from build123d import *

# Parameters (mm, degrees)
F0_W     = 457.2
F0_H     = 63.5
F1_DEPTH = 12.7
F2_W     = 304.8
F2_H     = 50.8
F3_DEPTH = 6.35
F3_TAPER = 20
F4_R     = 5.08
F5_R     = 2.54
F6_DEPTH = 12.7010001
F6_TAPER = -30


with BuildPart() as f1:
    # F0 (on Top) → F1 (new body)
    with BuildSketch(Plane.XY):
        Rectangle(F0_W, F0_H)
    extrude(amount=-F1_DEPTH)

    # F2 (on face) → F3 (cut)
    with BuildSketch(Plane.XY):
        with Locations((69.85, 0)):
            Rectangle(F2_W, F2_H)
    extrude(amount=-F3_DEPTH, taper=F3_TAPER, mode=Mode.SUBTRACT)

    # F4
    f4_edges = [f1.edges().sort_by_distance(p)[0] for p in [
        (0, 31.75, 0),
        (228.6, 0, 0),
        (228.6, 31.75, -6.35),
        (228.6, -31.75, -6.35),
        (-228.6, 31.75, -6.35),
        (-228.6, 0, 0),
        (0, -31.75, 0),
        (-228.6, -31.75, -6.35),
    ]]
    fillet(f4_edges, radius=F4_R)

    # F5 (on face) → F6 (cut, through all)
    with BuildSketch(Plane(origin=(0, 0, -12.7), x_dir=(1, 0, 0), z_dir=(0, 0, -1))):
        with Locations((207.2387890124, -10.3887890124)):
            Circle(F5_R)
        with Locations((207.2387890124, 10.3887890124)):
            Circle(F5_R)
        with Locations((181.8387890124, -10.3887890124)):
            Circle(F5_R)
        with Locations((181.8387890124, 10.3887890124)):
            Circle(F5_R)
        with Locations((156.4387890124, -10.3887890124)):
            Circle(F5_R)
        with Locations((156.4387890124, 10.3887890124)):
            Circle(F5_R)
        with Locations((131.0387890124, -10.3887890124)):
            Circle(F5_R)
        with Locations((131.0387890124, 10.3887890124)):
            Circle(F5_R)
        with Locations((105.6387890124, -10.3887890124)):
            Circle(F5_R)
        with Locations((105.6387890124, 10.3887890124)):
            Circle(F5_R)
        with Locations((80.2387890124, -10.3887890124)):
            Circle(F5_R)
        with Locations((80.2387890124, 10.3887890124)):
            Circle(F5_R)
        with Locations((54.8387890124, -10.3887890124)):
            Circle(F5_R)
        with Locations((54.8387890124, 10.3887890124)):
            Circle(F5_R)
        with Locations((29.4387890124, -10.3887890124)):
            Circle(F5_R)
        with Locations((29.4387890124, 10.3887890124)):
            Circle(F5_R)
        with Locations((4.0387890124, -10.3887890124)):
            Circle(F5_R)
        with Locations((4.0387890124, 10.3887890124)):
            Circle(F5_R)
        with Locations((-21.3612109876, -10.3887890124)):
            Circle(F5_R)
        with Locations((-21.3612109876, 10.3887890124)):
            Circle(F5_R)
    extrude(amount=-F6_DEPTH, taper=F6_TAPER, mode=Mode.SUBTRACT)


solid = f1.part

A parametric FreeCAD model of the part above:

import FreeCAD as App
import Part
import Sketcher
Q = App.Units.Quantity


def edges_at(feature, points):
    """Names of the edges that pass closest to the given points."""
    edges = feature.Shape.Edges
    near = lambda p: min(range(len(edges)), key=lambda i: edges[i].distToShape(Part.Vertex(*p))[0])
    return sorted({f"Edge{near(p) + 1}" for p in points})


def add_polygon(sketch, points):
    """Adds a closed chain of lines whose ends are joined by coincident constraints."""
    first, n = sketch.GeometryCount, len(points)
    for a, b in zip(points, points[1:] + points[:1]):
        sketch.addGeometry(Part.LineSegment(App.Vector(*a, 0), App.Vector(*b, 0)), False)
    for i in range(n):
        sketch.addConstraint(Sketcher.Constraint("Coincident", first + i, 2, first + (i + 1) % n, 1))

doc = App.newDocument("Part")
body = doc.addObject("PartDesign::Body", "Body")

# Sketch on XY plane
sketch1 = doc.addObject("Sketcher::SketchObject", "Sketch")
body.addObject(sketch1)
sketch1.AttachmentSupport = (doc.XY_Plane, [""])
sketch1.MapMode = "FlatFace"
add_polygon(sketch1, [(-229, 32), (-229, -32), (229, -32), (229, 32)])  # lines 0-3
sketch1.addConstraint([
    Sketcher.Constraint("Vertical", 0),
    Sketcher.Constraint("Horizontal", 1),
    Sketcher.Constraint("Vertical", 2),
    Sketcher.Constraint("Horizontal", 3),
    Sketcher.Constraint("Symmetric", 0, 2, 2, 2, -1, 1),
    Sketcher.Constraint("DistanceX", 1, 1, 1, 2, Q("18 in")),
    Sketcher.Constraint("DistanceY", 0, 2, 0, 1, Q("2.5 in")),
])
pad1 = doc.addObject("PartDesign::Pad", "Pad")
body.addObject(pad1)
pad1.Profile = sketch1
pad1.Length = Q("0.5 in")
pad1.Reversed = True

# Sketch on XY plane
sketch2 = doc.addObject("Sketcher::SketchObject", "Sketch001")
body.addObject(sketch2)
sketch2.AttachmentSupport = (doc.XY_Plane, [""])
sketch2.MapMode = "FlatFace"
add_polygon(sketch2, [(-83, 25), (-83, -25), (222, -25), (222, 25)])  # lines 0-3
sketch2.addConstraint([
    Sketcher.Constraint("Vertical", 0),
    Sketcher.Constraint("Horizontal", 1),
    Sketcher.Constraint("Vertical", 2),
    Sketcher.Constraint("Horizontal", 3),
    Sketcher.Constraint("DistanceX", 1, 1, 1, 2, Q("12 in")),
    Sketcher.Constraint("DistanceY", 0, 2, 0, 1, Q("2 in")),
    Sketcher.Constraint("DistanceY", 0, 2, -1, 1, Q("1 in")),
    Sketcher.Constraint("DistanceX", 0, 2, -1, 1, Q("3.25 in")),
])
pocket1 = doc.addObject("PartDesign::Pocket", "Pocket")
body.addObject(pocket1)
pocket1.Profile = sketch2
pocket1.Length = Q("0.25 in")
pocket1.TaperAngle = -20
doc.recompute()

fillet = doc.addObject("PartDesign::Fillet", "Fillet")
body.addObject(fillet)
fillet.Base = (pocket1, edges_at(pocket1, [
    (0, 31.75, 0),
    (228.6, 0, 0),
    (228.6, 31.75, -6.35),
    (228.6, -31.75, -6.35),
    (-228.6, 31.75, -6.35),
    (-228.6, 0, 0),
    (0, -31.75, 0),
    (-228.6, -31.75, -6.35),
]))
fillet.Radius = Q("0.2 in")

# Sketch on XY plane
sketch3 = doc.addObject("Sketcher::SketchObject", "Sketch002")
body.addObject(sketch3)
sketch3.AttachmentSupport = (doc.XY_Plane, [""])
sketch3.MapMode = "FlatFace"
sketch3.AttachmentOffset = App.Placement(App.Vector(0, 0, -0.5 * 25.4), App.Rotation())
sketch3.addGeometry([
    Part.Circle(App.Vector(207.2, 10.4, 0), App.Vector(0, 0, 1), 2.5),  # 0
    Part.Circle(App.Vector(207.2, -10.4, 0), App.Vector(0, 0, 1), 2.5),  # 1
    Part.Circle(App.Vector(181.8, 10.4, 0), App.Vector(0, 0, 1), 2.5),  # 2
    Part.Circle(App.Vector(181.8, -10.4, 0), App.Vector(0, 0, 1), 2.5),  # 3
    Part.Circle(App.Vector(156.4, 10.4, 0), App.Vector(0, 0, 1), 2.5),  # 4
    Part.Circle(App.Vector(156.4, -10.4, 0), App.Vector(0, 0, 1), 2.5),  # 5
    Part.Circle(App.Vector(131, 10.4, 0), App.Vector(0, 0, 1), 2.5),  # 6
    Part.Circle(App.Vector(131, -10.4, 0), App.Vector(0, 0, 1), 2.5),  # 7
    Part.Circle(App.Vector(105.6, 10.4, 0), App.Vector(0, 0, 1), 2.5),  # 8
    Part.Circle(App.Vector(105.6, -10.4, 0), App.Vector(0, 0, 1), 2.5),  # 9
    Part.Circle(App.Vector(80.2, 10.4, 0), App.Vector(0, 0, 1), 2.5),  # 10
    Part.Circle(App.Vector(80.2, -10.4, 0), App.Vector(0, 0, 1), 2.5),  # 11
    Part.Circle(App.Vector(54.8, 10.4, 0), App.Vector(0, 0, 1), 2.5),  # 12
    Part.Circle(App.Vector(54.8, -10.4, 0), App.Vector(0, 0, 1), 2.5),  # 13
    Part.Circle(App.Vector(29.4, 10.4, 0), App.Vector(0, 0, 1), 2.5),  # 14
    Part.Circle(App.Vector(29.4, -10.4, 0), App.Vector(0, 0, 1), 2.5),  # 15
    Part.Circle(App.Vector(4, 10.4, 0), App.Vector(0, 0, 1), 2.5),  # 16
    Part.Circle(App.Vector(4, -10.4, 0), App.Vector(0, 0, 1), 2.5),  # 17
    Part.Circle(App.Vector(-21.4, 10.4, 0), App.Vector(0, 0, 1), 2.5),  # 18
    Part.Circle(App.Vector(-21.4, -10.4, 0), App.Vector(0, 0, 1), 2.5),  # 19
], False)
sketch3.addConstraint([
    Sketcher.Constraint("Equal", 0, 1),
    Sketcher.Constraint("Equal", 1, 2),
    Sketcher.Constraint("Equal", 2, 3),
    Sketcher.Constraint("Equal", 3, 4),
    Sketcher.Constraint("Equal", 4, 5),
    Sketcher.Constraint("Equal", 5, 6),
    Sketcher.Constraint("Equal", 6, 7),
    Sketcher.Constraint("Equal", 7, 8),
    Sketcher.Constraint("Equal", 8, 9),
    Sketcher.Constraint("Equal", 9, 10),
    Sketcher.Constraint("Equal", 10, 11),
    Sketcher.Constraint("Equal", 11, 12),
    Sketcher.Constraint("Equal", 12, 13),
    Sketcher.Constraint("Equal", 13, 14),
    Sketcher.Constraint("Equal", 14, 15),
    Sketcher.Constraint("Equal", 15, 16),
    Sketcher.Constraint("Equal", 16, 17),
    Sketcher.Constraint("Equal", 17, 18),
    Sketcher.Constraint("Equal", 18, 19),
    Sketcher.Constraint("Symmetric", 0, 3, 1, 3, -1),
    Sketcher.Constraint("Symmetric", 2, 3, 3, 3, -1),
    Sketcher.Constraint("Symmetric", 4, 3, 5, 3, -1),
    Sketcher.Constraint("Symmetric", 6, 3, 7, 3, -1),
    Sketcher.Constraint("Symmetric", 8, 3, 9, 3, -1),
    Sketcher.Constraint("Symmetric", 10, 3, 11, 3, -1),
    Sketcher.Constraint("Symmetric", 12, 3, 13, 3, -1),
    Sketcher.Constraint("Symmetric", 14, 3, 15, 3, -1),
    Sketcher.Constraint("Symmetric", 16, 3, 17, 3, -1),
    Sketcher.Constraint("Symmetric", 18, 3, 19, 3, -1),
    Sketcher.Constraint("Horizontal", 0, 3, 2, 3),
    Sketcher.Constraint("Horizontal", 2, 3, 4, 3),
    Sketcher.Constraint("Horizontal", 4, 3, 6, 3),
    Sketcher.Constraint("Horizontal", 6, 3, 8, 3),
    Sketcher.Constraint("Horizontal", 8, 3, 10, 3),
    Sketcher.Constraint("Horizontal", 10, 3, 12, 3),
    Sketcher.Constraint("Horizontal", 12, 3, 14, 3),
    Sketcher.Constraint("Horizontal", 14, 3, 16, 3),
    Sketcher.Constraint("Horizontal", 16, 3, 18, 3),
    Sketcher.Constraint("Diameter", 0, Q("0.2 in")),
    Sketcher.Constraint("DistanceX", 2, 3, 0, 3, Q("1 in")),
    Sketcher.Constraint("DistanceX", 4, 3, 2, 3, Q("1 in")),
    Sketcher.Constraint("DistanceX", 6, 3, 4, 3, Q("1 in")),
    Sketcher.Constraint("DistanceX", 8, 3, 6, 3, Q("1 in")),
    Sketcher.Constraint("DistanceX", 10, 3, 8, 3, Q("1 in")),
    Sketcher.Constraint("DistanceX", 12, 3, 10, 3, Q("1 in")),
    Sketcher.Constraint("DistanceX", 14, 3, 12, 3, Q("1 in")),
    Sketcher.Constraint("DistanceX", 16, 3, 14, 3, Q("1 in")),
    Sketcher.Constraint("DistanceX", 18, 3, 16, 3, Q("1 in")),
    Sketcher.Constraint("DistanceX", -1, 1, 0, 3, 207.238789),
    Sketcher.Constraint("DistanceY", -1, 1, 0, 3, 10.388789),
])
pocket2 = doc.addObject("PartDesign::Pocket", "Pocket001")
body.addObject(pocket2)
pocket2.Profile = sketch3
pocket2.Length = 12.701
pocket2.Reversed = True
pocket2.TaperAngle = 30

doc.recompute()
